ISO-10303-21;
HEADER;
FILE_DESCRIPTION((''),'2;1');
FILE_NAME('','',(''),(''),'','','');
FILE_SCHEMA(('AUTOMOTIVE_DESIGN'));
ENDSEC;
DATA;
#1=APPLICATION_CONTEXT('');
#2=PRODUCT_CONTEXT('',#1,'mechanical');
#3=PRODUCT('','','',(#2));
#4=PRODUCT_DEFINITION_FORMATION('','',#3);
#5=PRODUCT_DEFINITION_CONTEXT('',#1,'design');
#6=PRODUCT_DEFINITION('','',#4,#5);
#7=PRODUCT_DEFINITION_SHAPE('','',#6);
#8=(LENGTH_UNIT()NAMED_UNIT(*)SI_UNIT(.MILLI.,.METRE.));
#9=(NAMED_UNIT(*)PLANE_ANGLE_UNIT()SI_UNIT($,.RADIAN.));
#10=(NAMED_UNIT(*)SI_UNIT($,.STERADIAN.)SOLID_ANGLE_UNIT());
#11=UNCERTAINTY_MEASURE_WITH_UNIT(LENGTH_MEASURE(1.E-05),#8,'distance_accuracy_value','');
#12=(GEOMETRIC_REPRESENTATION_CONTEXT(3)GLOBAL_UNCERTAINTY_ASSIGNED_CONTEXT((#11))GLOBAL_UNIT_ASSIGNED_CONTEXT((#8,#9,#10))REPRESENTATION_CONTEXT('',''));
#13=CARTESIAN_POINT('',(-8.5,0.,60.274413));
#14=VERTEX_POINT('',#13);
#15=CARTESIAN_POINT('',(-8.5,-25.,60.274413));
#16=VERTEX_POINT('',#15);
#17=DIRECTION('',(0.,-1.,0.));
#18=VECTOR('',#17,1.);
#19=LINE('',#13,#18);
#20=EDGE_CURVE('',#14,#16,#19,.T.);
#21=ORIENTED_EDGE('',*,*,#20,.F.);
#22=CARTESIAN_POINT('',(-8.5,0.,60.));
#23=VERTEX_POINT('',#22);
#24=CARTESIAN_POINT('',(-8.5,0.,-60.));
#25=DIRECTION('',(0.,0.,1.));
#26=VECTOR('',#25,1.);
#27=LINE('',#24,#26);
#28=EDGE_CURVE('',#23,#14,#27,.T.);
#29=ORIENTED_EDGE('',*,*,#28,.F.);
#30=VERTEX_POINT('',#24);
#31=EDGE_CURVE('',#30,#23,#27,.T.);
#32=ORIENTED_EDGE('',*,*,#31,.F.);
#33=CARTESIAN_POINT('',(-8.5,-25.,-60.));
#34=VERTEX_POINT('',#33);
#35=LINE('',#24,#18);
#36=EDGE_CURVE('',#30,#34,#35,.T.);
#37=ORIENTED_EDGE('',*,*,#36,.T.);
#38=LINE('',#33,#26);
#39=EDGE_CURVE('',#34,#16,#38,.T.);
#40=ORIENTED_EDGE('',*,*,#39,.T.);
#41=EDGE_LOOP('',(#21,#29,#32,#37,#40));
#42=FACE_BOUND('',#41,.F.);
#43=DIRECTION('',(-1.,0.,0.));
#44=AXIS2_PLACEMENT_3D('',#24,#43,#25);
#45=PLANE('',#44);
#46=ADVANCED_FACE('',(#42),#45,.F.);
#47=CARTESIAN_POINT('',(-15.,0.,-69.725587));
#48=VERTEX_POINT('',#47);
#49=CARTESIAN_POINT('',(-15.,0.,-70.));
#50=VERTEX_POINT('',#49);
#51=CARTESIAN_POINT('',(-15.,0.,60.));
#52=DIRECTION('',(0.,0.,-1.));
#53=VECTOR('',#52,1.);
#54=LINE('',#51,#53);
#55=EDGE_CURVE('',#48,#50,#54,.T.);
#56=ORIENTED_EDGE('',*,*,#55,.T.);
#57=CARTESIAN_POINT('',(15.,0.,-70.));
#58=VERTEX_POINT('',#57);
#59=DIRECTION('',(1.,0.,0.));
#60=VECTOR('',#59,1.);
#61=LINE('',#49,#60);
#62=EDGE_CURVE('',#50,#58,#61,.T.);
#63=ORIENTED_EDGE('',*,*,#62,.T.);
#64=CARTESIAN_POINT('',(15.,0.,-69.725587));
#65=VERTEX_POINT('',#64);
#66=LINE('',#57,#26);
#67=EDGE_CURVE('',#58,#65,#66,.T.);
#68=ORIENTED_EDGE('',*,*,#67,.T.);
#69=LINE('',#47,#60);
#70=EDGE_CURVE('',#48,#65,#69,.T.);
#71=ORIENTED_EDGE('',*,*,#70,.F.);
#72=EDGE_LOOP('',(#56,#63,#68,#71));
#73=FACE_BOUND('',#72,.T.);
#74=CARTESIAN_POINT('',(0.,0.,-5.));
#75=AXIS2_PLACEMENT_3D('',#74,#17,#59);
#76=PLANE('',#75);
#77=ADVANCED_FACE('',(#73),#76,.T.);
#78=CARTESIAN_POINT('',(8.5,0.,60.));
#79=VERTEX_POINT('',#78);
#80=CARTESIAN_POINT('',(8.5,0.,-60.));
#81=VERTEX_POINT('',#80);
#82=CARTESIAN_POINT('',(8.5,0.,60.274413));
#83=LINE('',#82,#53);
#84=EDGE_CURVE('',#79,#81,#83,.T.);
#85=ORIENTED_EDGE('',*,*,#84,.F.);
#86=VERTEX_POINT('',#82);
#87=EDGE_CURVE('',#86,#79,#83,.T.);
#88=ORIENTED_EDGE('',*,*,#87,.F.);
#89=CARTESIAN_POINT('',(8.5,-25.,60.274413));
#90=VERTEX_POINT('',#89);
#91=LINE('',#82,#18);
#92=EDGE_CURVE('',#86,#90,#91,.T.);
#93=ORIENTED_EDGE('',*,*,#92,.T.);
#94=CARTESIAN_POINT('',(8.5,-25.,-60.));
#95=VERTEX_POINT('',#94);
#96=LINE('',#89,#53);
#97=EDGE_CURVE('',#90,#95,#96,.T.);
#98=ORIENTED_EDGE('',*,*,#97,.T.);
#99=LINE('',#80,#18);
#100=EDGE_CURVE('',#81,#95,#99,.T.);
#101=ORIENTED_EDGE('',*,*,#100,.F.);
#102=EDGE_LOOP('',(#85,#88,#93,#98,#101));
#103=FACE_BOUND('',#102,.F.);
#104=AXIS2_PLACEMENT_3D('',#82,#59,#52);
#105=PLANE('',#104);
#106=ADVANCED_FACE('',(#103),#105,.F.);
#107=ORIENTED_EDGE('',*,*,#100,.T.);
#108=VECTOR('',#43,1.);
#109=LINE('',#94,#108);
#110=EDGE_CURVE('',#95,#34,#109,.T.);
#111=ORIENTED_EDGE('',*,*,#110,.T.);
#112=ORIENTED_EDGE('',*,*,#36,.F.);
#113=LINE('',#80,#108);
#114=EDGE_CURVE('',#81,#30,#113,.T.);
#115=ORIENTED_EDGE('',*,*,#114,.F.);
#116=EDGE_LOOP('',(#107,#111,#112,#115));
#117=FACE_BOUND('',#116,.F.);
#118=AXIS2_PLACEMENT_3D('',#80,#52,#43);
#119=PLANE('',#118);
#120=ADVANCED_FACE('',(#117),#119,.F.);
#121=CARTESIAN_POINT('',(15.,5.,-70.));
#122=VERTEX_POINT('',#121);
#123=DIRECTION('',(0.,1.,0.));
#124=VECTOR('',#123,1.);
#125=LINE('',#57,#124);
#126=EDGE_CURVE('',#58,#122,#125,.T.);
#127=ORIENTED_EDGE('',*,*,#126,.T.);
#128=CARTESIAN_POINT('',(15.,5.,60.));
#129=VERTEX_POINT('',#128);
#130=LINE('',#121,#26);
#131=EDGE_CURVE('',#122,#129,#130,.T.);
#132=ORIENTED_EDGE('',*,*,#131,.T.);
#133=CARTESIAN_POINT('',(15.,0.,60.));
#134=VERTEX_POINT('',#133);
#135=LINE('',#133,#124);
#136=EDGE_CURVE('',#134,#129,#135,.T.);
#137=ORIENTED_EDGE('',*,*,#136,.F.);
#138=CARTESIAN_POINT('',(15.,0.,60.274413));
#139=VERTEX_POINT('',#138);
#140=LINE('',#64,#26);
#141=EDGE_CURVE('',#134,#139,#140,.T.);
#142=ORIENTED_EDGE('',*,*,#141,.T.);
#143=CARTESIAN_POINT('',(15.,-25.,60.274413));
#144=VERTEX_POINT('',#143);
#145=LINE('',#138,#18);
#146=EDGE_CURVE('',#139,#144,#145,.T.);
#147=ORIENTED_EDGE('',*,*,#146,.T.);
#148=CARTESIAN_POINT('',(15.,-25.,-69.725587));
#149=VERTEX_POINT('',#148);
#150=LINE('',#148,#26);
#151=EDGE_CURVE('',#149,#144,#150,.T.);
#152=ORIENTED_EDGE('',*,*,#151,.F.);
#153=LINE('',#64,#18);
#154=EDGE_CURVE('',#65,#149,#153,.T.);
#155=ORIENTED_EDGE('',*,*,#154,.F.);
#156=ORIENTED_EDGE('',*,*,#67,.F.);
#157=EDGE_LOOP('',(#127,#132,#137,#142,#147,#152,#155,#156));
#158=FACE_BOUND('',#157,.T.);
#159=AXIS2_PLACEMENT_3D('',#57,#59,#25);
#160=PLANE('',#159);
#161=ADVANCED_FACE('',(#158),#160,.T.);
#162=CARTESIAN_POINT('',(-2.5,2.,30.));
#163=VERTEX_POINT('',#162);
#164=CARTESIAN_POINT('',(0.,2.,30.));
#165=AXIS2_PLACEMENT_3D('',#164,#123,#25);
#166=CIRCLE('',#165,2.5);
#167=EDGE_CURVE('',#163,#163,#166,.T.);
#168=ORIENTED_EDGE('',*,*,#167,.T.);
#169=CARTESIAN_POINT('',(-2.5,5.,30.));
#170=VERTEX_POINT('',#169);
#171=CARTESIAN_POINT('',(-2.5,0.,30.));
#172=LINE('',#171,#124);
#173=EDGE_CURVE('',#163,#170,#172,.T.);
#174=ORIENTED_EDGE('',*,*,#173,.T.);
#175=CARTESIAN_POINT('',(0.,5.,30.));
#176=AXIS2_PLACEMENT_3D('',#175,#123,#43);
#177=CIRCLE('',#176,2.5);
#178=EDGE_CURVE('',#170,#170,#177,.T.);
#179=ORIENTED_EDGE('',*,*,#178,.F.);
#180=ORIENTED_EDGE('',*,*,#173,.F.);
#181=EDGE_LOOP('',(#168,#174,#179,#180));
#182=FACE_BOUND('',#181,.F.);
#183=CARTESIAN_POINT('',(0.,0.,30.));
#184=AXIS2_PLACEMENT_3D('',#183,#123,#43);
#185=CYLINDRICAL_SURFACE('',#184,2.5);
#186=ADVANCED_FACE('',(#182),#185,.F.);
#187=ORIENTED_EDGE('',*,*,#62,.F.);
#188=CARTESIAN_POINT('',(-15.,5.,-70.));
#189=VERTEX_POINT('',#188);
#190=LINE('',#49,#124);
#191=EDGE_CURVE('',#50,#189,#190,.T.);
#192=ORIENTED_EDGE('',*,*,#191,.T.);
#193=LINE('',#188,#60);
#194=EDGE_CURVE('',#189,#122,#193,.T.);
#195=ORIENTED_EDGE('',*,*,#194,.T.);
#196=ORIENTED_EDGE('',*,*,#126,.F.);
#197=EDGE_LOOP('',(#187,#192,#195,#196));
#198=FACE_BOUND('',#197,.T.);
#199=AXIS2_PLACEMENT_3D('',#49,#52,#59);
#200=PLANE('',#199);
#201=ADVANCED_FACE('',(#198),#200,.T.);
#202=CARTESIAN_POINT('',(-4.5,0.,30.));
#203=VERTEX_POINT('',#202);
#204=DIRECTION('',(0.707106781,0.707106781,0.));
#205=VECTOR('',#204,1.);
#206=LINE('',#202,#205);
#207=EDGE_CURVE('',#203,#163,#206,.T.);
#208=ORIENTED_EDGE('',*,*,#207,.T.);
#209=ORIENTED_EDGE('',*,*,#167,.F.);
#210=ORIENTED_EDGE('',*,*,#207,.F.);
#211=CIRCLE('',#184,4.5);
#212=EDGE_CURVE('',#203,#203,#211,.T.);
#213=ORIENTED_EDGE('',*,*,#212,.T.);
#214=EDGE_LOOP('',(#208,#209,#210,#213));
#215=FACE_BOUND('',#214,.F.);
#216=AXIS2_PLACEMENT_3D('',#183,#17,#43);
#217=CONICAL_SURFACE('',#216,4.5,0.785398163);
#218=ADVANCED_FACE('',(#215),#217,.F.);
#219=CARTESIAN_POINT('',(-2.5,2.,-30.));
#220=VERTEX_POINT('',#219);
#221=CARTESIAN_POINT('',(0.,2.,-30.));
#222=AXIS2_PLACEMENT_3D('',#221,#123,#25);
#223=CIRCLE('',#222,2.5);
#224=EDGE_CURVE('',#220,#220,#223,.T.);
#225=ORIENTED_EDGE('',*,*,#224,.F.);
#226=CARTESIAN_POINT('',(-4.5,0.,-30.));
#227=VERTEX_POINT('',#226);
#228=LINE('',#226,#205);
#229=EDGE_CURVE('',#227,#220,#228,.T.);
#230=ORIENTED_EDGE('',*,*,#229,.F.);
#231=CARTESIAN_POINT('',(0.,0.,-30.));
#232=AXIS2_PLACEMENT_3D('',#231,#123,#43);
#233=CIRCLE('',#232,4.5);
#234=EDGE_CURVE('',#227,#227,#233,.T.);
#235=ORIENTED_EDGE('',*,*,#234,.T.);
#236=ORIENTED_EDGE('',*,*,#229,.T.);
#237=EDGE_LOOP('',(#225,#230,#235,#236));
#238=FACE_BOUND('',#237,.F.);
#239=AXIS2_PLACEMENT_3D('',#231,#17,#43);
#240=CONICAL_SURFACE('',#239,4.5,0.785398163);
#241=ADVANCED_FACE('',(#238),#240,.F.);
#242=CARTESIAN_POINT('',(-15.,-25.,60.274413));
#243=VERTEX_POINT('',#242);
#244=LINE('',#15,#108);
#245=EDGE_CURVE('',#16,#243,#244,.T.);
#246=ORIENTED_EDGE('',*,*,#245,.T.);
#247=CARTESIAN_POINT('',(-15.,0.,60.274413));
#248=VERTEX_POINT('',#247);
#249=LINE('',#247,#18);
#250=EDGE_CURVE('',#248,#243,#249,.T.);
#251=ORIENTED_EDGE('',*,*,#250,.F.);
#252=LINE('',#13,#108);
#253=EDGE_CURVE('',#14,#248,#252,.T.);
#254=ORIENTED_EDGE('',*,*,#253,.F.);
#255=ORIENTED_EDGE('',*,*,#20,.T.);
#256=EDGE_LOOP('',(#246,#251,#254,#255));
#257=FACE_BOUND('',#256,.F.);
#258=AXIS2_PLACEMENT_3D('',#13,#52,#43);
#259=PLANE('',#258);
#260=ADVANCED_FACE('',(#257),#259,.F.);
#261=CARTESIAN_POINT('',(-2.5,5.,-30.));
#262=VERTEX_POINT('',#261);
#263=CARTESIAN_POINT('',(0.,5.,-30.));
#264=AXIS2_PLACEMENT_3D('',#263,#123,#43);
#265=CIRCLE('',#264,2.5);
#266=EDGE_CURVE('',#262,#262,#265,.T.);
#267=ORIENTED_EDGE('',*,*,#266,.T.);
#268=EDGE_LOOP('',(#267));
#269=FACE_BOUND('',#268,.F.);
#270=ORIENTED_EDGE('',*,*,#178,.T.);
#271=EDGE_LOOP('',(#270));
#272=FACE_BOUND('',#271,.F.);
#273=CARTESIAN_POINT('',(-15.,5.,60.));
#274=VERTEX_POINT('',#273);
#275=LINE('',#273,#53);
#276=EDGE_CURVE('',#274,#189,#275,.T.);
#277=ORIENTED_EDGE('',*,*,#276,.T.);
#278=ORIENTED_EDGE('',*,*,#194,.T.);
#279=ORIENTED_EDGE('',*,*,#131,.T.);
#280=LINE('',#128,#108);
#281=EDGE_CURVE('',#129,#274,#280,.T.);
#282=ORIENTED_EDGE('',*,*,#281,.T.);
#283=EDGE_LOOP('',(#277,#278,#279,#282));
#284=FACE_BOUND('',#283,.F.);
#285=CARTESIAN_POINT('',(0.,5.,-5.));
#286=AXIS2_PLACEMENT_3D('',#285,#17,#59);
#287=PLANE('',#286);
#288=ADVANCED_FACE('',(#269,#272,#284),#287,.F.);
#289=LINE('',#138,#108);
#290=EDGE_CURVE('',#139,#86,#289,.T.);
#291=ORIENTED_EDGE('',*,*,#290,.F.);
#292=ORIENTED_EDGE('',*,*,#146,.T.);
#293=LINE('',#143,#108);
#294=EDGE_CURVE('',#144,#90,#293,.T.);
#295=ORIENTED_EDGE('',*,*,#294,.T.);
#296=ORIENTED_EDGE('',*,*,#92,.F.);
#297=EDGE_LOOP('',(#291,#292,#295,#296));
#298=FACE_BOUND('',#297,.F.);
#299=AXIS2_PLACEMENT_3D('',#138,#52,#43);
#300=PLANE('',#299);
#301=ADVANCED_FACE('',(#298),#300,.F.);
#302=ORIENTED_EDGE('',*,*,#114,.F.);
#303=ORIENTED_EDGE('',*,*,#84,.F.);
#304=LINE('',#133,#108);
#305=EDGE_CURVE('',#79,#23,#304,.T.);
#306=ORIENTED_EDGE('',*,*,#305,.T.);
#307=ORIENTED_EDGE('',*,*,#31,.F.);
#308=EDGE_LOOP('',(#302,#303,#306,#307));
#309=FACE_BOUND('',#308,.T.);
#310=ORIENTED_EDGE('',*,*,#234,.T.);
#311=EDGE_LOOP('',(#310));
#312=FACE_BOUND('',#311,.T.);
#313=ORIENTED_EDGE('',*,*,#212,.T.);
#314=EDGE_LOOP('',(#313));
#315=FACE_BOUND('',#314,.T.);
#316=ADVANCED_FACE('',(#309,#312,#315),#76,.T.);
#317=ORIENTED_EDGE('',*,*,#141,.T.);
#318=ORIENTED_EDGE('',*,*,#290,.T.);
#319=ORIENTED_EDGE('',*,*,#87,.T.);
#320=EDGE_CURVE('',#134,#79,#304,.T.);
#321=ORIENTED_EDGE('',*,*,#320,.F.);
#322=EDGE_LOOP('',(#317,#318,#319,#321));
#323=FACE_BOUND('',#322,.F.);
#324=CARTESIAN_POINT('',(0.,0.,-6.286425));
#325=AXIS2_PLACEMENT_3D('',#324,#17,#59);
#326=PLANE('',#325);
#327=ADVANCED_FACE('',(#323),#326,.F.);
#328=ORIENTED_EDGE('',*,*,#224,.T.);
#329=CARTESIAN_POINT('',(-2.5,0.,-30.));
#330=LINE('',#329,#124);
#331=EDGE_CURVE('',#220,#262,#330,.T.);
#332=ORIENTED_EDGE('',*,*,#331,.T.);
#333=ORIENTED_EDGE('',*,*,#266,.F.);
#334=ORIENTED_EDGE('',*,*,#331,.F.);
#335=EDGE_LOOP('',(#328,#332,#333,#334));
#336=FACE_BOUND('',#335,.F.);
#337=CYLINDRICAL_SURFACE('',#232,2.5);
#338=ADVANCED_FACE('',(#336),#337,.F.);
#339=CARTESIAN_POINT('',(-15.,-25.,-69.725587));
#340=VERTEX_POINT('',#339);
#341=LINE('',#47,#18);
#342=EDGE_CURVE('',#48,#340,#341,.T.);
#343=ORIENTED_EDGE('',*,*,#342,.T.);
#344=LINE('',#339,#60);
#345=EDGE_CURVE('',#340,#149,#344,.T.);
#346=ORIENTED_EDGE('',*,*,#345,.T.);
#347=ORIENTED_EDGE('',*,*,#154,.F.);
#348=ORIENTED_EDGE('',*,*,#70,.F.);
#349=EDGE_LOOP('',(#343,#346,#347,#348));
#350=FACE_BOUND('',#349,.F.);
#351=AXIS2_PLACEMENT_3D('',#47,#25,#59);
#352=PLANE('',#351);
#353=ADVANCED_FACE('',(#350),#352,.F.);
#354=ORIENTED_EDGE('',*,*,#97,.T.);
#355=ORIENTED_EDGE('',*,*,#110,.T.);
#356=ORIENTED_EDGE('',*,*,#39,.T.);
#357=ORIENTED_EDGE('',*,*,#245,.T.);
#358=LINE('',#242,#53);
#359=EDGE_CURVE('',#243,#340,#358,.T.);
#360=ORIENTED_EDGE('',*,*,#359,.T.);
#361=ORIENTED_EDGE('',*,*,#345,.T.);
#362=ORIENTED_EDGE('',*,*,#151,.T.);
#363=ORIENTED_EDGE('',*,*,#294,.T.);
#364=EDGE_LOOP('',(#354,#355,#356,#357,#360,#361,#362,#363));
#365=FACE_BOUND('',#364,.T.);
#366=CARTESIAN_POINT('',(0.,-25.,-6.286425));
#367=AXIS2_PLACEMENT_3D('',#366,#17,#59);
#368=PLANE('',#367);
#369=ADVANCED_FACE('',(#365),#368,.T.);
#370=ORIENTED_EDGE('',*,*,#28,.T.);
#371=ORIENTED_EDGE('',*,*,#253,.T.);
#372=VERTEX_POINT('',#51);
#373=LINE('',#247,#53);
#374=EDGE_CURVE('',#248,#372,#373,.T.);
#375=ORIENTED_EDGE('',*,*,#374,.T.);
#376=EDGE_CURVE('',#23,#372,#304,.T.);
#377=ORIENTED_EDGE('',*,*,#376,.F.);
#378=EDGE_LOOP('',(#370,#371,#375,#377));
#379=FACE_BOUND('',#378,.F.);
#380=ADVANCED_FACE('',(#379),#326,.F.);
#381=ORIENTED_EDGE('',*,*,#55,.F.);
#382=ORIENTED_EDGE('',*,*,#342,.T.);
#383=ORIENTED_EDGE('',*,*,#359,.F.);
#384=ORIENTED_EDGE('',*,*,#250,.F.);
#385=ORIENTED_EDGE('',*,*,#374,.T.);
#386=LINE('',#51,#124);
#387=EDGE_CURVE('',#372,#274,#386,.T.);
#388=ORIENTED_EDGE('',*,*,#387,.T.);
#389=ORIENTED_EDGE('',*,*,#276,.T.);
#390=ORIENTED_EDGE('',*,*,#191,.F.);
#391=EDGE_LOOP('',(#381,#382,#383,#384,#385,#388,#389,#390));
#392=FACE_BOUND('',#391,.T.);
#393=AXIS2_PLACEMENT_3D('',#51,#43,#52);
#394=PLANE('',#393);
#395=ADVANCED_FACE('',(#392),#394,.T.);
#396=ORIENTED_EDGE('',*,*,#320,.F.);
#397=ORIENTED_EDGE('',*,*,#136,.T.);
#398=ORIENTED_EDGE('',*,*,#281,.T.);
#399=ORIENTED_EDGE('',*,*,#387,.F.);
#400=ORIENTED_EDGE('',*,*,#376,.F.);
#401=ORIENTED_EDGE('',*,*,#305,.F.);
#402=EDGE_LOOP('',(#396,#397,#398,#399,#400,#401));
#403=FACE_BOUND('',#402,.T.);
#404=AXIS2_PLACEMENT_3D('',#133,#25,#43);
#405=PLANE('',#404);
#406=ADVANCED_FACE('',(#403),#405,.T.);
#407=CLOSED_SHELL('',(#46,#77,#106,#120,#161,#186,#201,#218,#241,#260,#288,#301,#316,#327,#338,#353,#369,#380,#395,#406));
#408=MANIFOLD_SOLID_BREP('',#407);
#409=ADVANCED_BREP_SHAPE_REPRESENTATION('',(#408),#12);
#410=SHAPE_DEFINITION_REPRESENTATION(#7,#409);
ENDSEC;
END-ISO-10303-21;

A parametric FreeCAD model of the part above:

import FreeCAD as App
import Part
import Sketcher
Q = App.Units.Quantity

doc = App.newDocument("Part")
body = doc.addObject("PartDesign::Body", "Body")

sketch1 = body.newObject("Sketcher::SketchObject", "Sketch")
sketch1.AttachmentSupport = (doc.getObject("XZ_Plane"), [""])
sketch1.MapMode = "FlatFace"
sketch1.addGeometry([
    Part.LineSegment(App.Vector(-8, -60, 0), App.Vector(-8, 60, 0)),
    Part.LineSegment(App.Vector(-8, 60, 0), App.Vector(-15, 60, 0)),
    Part.LineSegment(App.Vector(-15, 60, 0), App.Vector(-15, -70, 0)),
    Part.LineSegment(App.Vector(-15, -70, 0), App.Vector(15, -70, 0)),
    Part.LineSegment(App.Vector(15, -70, 0), App.Vector(15, 60, 0)),
    Part.LineSegment(App.Vector(15, 60, 0), App.Vector(8, 60, 0)),
    Part.LineSegment(App.Vector(8, 60, 0), App.Vector(8, -60, 0)),
    Part.LineSegment(App.Vector(8, -60, 0), App.Vector(-8, -60, 0)),
], False)
sketch1.addConstraint([
    Sketcher.Constraint("Coincident", 0, 2, 1, 1),
    Sketcher.Constraint("Coincident", 1, 2, 2, 1),
    Sketcher.Constraint("Coincident", 2, 2, 3, 1),
    Sketcher.Constraint("Coincident", 3, 2, 4, 1),
    Sketcher.Constraint("Coincident", 4, 2, 5, 1),
    Sketcher.Constraint("Coincident", 5, 2, 6, 1),
    Sketcher.Constraint("Coincident", 6, 2, 7, 1),
    Sketcher.Constraint("Coincident", 7, 2, 0, 1),
    Sketcher.Constraint("Vertical", 0),
    Sketcher.Constraint("Horizontal", 1),
    Sketcher.Constraint("Vertical", 2),
    Sketcher.Constraint("Horizontal", 3),
    Sketcher.Constraint("Vertical", 4),
    Sketcher.Constraint("Horizontal", 5),
    Sketcher.Constraint("Vertical", 6),
    Sketcher.Constraint("Horizontal", 7),
    Sketcher.Constraint("Symmetric", 1, 2, 4, 2, -2),
    Sketcher.Constraint("Equal", 1, 5),
    Sketcher.Constraint("DistanceX", 3, 1, 3, 2, Q("30 mm")),
    Sketcher.Constraint("DistanceX", 7, 2, 7, 1, Q("17 mm")),
    Sketcher.Constraint("DistanceY", 2, 2, 2, 1, Q("130 mm")),
    Sketcher.Constraint("DistanceY", 6, 2, -1, 1, Q("60 mm")),
    Sketcher.Constraint("DistanceY", 0, 1, 0, 2, Q("120.274413 mm")),
])
pad1 = body.newObject("PartDesign::Pad", "Pad")
pad1.Profile = sketch1
pad1.Length = 25

sketch2 = body.newObject("Sketcher::SketchObject", "Sketch001")
sketch2.AttachmentSupport = (doc.getObject("XZ_Plane"), [""])
sketch2.MapMode = "FlatFace"
sketch2.addGeometry([
    Part.LineSegment(App.Vector(15, -70, 0), App.Vector(15, 60, 0)),
    Part.LineSegment(App.Vector(15, 60, 0), App.Vector(-15, 60, 0)),
    Part.LineSegment(App.Vector(-15, 60, 0), App.Vector(-15, -70, 0)),
    Part.LineSegment(App.Vector(-15, -70, 0), App.Vector(15, -70, 0)),
    Part.Circle(App.Vector(0, -30, 0), App.Vector(0, 0, 1), 1.2),
], False)
sketch2.addConstraint([
    Sketcher.Constraint("Coincident", 0, 2, 1, 1),
    Sketcher.Constraint("Coincident", 1, 2, 2, 1),
    Sketcher.Constraint("Coincident", 2, 2, 3, 1),
    Sketcher.Constraint("Coincident", 3, 2, 0, 1),
    Sketcher.Constraint("Vertical", 0),
    Sketcher.Constraint("Horizontal", 1),
    Sketcher.Constraint("Vertical", 2),
    Sketcher.Constraint("Horizontal", 3),
    Sketcher.Constraint("PointOnObject", 4, 3, -2),
    Sketcher.Constraint("DistanceX", 1, 2, 1, 1, Q("30 mm")),
    Sketcher.Constraint("DistanceY", 0, 1, 0, 2, Q("130 mm")),
    Sketcher.Constraint("DistanceY", 4, 3, -1, 1, Q("30 mm")),
    Sketcher.Constraint("DistanceX", -1, 1, 0, 2, Q("15 mm")),
    Sketcher.Constraint("DistanceY", -1, 1, 0, 2, Q("60 mm")),
    Sketcher.Constraint("Diameter", 4, Q("2.484309 mm")),
])
pad2 = body.newObject("PartDesign::Pad", "Pad001")
pad2.Profile = sketch2
pad2.Length = 5
pad2.Reversed = True

sketch3 = body.newObject("Sketcher::SketchObject", "Sketch002")
sketch3.AttachmentSupport = (doc.getObject("XZ_Plane"), [""])
sketch3.MapMode = "FlatFace"
sketch3.addGeometry([
    Part.Circle(App.Vector(0, 30, 0), App.Vector(0, 0, 1), 2.5),
    Part.Circle(App.Vector(0, -30, 0), App.Vector(0, 0, 1), 2.5),
], False)
sketch3.addConstraint([
    Sketcher.Constraint("Equal", 0, 1),
    Sketcher.Constraint("Symmetric", 0, 3, 1, 3, -1, 1),
    Sketcher.Constraint("PointOnObject", 0, 3, -2),
    Sketcher.Constraint("Diameter", 0, Q("5 mm")),
    Sketcher.Constraint("DistanceY", -1, 1, 0, 3, Q("30 mm")),
])
doc.recompute()
hole = body.newObject("PartDesign::Hole", "Hole")
hole.Profile = sketch3
hole.ThreadType = "None"
hole.Diameter = 5
hole.DepthType = "ThroughAll"
hole.HoleCutType = "Countersink"
hole.HoleCutDiameter = 9
hole.HoleCutCountersinkAngle = 90

doc.recompute()
